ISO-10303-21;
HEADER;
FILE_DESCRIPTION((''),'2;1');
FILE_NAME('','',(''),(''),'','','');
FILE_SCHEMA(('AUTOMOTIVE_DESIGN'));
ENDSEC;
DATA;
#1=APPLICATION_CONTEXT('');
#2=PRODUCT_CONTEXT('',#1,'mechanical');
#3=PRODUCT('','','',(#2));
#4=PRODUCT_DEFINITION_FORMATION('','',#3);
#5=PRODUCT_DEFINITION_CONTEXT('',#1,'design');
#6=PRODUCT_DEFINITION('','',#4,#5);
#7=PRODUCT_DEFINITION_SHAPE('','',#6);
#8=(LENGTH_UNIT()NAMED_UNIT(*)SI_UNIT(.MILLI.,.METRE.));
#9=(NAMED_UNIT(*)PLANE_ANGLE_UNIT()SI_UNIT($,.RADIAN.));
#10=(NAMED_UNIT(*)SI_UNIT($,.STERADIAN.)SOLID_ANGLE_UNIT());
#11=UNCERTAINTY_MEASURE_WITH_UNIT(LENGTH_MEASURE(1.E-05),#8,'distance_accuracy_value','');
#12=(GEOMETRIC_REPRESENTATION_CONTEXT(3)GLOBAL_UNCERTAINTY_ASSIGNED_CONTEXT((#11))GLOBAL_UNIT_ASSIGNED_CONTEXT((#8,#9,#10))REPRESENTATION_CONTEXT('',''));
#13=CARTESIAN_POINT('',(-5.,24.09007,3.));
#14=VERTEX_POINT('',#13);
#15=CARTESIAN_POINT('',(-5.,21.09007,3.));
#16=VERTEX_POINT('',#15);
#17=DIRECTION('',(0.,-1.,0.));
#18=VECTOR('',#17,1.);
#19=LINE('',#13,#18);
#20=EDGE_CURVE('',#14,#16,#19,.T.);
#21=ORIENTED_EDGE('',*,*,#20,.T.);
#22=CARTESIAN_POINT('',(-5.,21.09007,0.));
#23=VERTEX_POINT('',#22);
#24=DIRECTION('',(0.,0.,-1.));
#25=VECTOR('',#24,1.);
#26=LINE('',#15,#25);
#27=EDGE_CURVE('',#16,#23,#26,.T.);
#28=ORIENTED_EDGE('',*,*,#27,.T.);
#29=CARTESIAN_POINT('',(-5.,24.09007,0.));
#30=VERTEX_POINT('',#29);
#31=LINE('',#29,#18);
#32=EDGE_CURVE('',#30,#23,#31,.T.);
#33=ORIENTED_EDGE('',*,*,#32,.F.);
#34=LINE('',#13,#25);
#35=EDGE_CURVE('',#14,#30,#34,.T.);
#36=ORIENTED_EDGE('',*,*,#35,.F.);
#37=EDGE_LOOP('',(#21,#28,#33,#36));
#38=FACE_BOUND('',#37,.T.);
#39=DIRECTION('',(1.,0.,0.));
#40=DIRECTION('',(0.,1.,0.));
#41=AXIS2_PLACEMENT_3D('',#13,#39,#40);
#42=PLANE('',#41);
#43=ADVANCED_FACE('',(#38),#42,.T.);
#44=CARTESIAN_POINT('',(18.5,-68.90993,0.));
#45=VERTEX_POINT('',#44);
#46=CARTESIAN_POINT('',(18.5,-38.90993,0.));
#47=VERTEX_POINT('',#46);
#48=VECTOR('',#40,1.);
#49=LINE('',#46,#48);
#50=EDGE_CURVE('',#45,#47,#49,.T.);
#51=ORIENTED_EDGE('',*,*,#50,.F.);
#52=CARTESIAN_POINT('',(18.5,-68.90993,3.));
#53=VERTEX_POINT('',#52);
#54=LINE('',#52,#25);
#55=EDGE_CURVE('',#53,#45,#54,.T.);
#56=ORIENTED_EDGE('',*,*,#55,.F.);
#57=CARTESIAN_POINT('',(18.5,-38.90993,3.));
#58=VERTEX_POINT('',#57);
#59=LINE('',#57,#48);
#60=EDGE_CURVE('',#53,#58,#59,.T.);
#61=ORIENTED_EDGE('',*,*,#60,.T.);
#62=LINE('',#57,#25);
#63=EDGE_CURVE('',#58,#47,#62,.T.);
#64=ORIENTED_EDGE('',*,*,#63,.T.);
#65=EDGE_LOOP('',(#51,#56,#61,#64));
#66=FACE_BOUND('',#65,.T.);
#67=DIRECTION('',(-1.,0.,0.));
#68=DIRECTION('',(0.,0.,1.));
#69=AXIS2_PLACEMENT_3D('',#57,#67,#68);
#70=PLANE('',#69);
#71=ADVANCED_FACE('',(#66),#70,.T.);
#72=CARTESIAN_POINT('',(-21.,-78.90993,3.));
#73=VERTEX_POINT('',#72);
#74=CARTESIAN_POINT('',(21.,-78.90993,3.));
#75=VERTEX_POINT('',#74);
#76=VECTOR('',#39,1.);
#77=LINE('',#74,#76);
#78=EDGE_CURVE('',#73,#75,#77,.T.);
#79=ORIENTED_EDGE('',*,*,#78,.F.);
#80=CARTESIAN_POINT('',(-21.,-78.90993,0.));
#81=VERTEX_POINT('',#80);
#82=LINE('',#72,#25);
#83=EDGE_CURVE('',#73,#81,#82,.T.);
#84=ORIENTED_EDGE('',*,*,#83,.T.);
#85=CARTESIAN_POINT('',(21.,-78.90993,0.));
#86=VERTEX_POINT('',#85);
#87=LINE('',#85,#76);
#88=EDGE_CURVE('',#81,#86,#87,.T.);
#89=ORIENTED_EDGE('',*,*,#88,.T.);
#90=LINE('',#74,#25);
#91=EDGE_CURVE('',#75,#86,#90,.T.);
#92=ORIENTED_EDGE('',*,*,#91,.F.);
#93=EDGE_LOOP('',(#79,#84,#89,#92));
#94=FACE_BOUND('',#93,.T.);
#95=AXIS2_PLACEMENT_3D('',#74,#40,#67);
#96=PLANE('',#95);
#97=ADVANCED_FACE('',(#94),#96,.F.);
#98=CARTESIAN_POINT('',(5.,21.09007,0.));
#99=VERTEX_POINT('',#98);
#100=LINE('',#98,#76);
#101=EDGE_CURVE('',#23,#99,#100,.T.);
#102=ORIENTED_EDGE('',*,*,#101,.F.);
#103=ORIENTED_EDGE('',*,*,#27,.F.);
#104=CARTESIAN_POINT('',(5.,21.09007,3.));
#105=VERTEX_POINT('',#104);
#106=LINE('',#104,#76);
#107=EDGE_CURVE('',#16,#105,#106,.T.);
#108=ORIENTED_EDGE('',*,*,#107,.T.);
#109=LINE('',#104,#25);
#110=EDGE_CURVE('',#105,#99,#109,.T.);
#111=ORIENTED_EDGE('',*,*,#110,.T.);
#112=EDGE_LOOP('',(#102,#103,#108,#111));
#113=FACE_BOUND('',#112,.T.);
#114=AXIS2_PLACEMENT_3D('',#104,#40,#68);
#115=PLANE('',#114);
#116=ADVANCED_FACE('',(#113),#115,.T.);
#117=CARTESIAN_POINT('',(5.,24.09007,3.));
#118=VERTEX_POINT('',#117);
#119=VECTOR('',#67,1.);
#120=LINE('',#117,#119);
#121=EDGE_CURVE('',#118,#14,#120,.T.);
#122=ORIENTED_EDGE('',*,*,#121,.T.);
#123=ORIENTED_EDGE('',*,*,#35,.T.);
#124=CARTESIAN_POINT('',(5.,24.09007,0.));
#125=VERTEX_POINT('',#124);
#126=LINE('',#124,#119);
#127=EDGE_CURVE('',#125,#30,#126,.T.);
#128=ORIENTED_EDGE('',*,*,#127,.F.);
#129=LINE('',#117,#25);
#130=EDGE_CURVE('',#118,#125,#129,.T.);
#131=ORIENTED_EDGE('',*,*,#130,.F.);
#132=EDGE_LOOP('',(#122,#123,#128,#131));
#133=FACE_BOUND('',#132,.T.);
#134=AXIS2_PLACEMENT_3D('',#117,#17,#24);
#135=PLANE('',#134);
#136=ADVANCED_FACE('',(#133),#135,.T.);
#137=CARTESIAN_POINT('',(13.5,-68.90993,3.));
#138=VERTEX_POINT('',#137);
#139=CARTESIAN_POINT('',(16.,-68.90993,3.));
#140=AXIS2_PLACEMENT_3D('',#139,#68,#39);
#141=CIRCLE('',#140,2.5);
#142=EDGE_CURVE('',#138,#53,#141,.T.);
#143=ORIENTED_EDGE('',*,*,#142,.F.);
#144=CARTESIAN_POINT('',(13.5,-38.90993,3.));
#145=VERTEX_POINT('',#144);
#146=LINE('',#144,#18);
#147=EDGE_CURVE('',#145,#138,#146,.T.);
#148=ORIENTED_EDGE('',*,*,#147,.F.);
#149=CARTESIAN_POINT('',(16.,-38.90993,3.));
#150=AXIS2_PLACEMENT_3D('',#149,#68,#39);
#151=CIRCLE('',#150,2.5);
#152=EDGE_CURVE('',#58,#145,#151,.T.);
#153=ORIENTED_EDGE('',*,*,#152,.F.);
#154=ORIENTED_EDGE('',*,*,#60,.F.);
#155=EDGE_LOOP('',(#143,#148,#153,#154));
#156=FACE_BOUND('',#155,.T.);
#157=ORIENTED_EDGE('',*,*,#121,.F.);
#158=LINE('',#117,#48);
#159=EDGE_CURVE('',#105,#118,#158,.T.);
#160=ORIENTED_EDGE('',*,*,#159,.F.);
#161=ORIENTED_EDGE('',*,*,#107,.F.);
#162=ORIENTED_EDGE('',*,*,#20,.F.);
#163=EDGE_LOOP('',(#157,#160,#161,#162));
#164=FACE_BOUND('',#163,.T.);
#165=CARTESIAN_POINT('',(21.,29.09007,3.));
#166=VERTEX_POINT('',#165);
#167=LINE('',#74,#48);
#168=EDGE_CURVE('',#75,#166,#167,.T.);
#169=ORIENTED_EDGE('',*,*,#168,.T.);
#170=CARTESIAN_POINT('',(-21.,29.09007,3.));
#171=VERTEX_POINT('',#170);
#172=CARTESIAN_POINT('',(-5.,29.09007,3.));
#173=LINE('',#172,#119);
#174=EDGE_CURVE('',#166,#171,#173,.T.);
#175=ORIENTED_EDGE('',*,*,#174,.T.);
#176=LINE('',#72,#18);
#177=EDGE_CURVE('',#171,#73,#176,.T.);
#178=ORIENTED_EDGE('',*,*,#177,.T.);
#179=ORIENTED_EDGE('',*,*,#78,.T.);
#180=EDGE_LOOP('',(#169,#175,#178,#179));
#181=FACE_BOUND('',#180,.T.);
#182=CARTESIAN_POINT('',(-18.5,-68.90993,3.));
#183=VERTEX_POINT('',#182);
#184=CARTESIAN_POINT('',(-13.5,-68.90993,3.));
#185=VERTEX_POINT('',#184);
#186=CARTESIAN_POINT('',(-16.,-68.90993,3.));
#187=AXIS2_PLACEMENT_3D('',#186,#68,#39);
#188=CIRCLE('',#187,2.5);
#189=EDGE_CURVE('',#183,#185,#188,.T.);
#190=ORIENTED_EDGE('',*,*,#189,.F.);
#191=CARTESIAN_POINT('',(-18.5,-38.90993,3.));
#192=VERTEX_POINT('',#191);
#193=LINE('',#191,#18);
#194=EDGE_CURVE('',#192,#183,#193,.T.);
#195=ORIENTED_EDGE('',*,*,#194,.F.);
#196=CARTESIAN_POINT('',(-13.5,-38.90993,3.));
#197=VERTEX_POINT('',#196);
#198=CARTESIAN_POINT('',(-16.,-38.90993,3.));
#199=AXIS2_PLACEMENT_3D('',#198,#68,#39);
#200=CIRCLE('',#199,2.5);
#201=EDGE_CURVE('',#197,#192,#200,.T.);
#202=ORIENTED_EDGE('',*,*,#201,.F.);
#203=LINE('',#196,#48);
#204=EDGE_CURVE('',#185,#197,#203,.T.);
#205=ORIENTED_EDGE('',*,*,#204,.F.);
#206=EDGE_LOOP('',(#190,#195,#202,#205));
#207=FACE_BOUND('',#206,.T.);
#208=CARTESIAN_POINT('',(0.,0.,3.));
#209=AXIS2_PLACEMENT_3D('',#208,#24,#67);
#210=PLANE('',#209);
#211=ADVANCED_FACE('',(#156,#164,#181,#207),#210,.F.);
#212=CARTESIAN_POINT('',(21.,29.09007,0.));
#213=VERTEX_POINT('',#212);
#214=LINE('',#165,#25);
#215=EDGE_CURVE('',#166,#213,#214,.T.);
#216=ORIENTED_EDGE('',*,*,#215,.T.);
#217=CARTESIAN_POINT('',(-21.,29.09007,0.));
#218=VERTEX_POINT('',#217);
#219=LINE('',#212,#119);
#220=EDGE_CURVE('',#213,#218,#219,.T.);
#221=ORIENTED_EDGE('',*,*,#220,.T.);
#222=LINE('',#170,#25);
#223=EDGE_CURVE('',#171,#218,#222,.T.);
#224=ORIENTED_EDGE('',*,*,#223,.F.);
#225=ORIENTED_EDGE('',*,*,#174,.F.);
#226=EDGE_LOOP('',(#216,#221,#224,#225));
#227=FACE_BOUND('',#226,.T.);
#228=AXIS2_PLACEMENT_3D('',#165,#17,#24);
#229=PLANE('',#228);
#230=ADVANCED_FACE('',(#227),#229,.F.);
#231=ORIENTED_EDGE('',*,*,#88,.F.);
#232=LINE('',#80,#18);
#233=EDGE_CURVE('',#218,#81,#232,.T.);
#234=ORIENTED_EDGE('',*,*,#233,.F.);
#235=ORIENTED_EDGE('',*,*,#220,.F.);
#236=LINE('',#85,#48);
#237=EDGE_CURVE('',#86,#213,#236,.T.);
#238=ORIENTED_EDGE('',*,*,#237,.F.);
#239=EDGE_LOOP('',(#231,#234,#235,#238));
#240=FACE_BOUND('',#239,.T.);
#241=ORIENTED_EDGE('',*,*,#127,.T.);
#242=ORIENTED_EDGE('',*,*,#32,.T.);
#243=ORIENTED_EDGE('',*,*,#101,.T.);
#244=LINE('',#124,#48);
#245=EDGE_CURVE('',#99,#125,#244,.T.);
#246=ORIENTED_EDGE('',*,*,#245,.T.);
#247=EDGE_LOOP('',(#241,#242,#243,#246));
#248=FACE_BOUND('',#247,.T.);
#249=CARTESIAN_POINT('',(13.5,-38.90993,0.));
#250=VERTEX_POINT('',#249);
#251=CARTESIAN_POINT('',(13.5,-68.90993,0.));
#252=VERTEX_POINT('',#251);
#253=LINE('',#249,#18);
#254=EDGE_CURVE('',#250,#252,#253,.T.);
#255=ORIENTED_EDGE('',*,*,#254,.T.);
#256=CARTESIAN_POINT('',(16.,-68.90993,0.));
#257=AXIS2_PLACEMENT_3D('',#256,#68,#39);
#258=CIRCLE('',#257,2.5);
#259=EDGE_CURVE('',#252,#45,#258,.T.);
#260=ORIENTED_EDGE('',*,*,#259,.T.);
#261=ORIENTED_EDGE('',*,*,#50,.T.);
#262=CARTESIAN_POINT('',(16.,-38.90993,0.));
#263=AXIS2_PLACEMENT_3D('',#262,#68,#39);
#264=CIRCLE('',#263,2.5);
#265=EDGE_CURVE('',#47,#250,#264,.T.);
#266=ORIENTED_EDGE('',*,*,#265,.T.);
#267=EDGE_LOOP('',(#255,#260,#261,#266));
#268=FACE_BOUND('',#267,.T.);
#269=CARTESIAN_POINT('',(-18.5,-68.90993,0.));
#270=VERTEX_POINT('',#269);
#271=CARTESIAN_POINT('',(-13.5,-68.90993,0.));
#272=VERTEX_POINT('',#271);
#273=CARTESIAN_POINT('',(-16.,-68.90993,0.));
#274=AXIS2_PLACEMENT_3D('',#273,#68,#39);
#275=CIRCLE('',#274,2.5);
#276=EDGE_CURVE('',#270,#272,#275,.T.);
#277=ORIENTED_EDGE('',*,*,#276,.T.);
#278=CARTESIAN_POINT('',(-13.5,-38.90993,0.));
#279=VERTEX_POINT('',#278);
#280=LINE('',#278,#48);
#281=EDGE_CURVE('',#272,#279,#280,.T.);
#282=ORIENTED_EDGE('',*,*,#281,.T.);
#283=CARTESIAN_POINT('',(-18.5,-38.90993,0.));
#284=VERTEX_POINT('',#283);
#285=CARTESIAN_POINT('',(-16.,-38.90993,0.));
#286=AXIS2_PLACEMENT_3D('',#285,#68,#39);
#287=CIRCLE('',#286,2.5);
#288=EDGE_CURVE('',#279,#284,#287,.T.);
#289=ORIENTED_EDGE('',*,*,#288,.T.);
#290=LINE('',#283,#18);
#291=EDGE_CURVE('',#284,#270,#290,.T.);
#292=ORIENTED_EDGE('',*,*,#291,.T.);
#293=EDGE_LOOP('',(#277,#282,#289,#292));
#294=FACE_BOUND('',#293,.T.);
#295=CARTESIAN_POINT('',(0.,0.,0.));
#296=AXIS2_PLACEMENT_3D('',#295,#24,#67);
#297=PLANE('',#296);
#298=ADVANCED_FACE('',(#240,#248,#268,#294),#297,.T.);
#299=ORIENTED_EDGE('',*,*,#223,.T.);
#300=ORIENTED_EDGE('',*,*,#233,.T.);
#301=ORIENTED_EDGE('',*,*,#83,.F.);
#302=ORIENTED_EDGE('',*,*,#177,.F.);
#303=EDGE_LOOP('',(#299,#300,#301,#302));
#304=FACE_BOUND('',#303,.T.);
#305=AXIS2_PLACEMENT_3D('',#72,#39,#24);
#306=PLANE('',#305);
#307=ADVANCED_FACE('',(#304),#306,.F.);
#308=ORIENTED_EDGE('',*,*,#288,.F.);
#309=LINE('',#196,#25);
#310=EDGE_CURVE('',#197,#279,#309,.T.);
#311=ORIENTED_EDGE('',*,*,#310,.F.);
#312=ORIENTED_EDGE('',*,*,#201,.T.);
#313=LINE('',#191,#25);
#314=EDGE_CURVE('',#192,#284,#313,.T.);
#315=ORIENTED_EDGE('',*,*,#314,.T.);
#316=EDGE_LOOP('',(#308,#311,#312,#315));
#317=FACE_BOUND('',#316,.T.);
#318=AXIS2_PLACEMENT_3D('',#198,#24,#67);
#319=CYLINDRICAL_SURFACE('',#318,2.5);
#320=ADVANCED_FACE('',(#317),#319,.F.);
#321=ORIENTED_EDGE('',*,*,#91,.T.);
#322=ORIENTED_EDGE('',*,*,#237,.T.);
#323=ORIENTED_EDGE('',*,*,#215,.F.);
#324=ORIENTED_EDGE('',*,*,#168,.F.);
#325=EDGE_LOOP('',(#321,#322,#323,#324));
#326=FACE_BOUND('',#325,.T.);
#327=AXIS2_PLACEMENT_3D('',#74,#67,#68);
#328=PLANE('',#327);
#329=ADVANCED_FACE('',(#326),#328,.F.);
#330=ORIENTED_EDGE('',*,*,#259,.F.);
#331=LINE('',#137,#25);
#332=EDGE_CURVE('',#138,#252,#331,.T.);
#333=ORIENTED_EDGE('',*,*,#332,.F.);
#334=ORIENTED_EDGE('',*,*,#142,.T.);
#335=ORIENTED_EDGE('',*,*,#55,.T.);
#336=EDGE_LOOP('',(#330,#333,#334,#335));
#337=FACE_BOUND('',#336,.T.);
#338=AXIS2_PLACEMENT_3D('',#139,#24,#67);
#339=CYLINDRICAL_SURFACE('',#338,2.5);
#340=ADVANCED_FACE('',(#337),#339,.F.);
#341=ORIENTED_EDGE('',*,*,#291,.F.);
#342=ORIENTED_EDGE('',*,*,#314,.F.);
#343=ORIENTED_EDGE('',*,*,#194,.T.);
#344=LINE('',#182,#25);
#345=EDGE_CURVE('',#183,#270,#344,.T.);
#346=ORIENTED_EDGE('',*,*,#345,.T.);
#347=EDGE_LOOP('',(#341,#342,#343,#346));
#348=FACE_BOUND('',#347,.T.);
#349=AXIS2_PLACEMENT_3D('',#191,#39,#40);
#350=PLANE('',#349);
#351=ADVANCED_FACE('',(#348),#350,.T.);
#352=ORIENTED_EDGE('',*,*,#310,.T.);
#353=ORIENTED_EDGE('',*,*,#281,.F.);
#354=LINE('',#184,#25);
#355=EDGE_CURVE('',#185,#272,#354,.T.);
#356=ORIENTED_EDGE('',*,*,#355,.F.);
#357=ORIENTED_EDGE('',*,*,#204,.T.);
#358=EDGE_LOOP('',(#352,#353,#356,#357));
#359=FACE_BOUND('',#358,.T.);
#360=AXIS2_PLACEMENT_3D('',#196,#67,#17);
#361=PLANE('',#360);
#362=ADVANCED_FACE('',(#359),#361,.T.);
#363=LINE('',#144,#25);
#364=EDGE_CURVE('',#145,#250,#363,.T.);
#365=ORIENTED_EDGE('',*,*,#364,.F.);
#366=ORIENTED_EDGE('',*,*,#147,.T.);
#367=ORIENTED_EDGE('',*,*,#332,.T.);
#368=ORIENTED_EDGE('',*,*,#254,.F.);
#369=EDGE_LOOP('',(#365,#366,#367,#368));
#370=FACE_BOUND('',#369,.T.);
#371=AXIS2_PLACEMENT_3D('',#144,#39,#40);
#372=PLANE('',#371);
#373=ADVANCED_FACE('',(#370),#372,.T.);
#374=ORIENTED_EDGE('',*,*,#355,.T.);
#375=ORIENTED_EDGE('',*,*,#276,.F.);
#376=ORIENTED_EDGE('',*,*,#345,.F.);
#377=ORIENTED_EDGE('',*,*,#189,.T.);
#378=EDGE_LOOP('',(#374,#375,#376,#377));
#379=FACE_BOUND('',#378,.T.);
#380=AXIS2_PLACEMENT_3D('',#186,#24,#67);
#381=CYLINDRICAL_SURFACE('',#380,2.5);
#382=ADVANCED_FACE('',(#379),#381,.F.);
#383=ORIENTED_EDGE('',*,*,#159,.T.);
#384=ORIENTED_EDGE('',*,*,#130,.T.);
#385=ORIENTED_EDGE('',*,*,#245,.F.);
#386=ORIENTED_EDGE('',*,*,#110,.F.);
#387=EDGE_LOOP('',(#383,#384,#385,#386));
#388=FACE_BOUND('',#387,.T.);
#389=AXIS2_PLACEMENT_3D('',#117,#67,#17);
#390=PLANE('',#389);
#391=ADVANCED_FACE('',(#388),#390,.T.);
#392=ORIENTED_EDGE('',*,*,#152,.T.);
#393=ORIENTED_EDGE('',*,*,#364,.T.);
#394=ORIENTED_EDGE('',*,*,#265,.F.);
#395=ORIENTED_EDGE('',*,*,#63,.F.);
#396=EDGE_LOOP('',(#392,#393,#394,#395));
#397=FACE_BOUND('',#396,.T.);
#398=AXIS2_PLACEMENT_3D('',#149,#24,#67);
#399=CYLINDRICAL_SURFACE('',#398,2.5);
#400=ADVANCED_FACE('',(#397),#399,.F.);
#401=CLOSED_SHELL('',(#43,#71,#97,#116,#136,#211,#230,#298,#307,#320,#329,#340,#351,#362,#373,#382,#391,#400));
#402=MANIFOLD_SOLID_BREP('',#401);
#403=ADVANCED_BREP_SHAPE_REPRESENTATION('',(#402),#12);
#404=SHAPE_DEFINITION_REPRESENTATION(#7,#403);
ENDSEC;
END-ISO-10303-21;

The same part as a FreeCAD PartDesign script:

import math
import FreeCAD as App
import Part
import Sketcher
Q = App.Units.Quantity


def add_polygon(sketch, points):
    """Adds a closed chain of lines whose ends are joined by coincident constraints."""
    first, n = sketch.GeometryCount, len(points)
    for a, b in zip(points, points[1:] + points[:1]):
        sketch.addGeometry(Part.LineSegment(App.Vector(*a, 0), App.Vector(*b, 0)), False)
    for i in range(n):
        sketch.addConstraint(Sketcher.Constraint("Coincident", first + i, 2, first + (i + 1) % n, 1))

doc = App.newDocument("Part")
params = doc.addObject("Spreadsheet::Sheet", "Params")
for row, (alias, value) in enumerate([
    ("sketch1_radius", "2.5 mm"),
    ("sketch1_width", "42 mm"),
    ("sketch1_width2", "10 mm"),
    ("sketch1_height", "108 mm"),
    ("sketch1_height2", "30 mm"),
    ("pad1_length", "3 mm"),
], start=1):
    params.set(f"A{row}", alias)
    params.set(f"B{row}", "=" + value)
    params.setAlias(f"B{row}", alias)

body = doc.addObject("PartDesign::Body", "Body")

# Sketch on XY plane
sketch1 = body.newObject("Sketcher::SketchObject", "Sketch")
sketch1.AttachmentSupport = (doc.getObject("XY_Plane"), [""])
sketch1.MapMode = "FlatFace"
add_polygon(sketch1, [(-21, -78.9), (21, -78.9), (21, 29.1), (-21, 29.1)])  # lines 0-3
sketch1.addGeometry(Part.LineSegment(App.Vector(18.5, -38.9, 0), App.Vector(18.5, -68.9, 0)), False)  # 4
sketch1.addGeometry(Part.ArcOfCircle(Part.Circle(App.Vector(16, -68.9, 0), App.Vector(0, 0, 1), 2.5), math.radians(180), math.radians(360)), False)  # 5
sketch1.addGeometry(Part.LineSegment(App.Vector(13.5, -68.9, 0), App.Vector(13.5, -38.9, 0)), False)  # 6
sketch1.addGeometry(Part.ArcOfCircle(Part.Circle(App.Vector(16, -38.9, 0), App.Vector(0, 0, 1), 2.5), math.radians(0), math.radians(180)), False)  # 7
sketch1.addGeometry(Part.LineSegment(App.Vector(-13.5, -38.9, 0), App.Vector(-13.5, -68.9, 0)), False)  # 8
sketch1.addGeometry(Part.ArcOfCircle(Part.Circle(App.Vector(-16, -68.9, 0), App.Vector(0, 0, 1), 2.5), math.radians(180), math.radians(360)), False)  # 9
sketch1.addGeometry(Part.LineSegment(App.Vector(-18.5, -68.9, 0), App.Vector(-18.5, -38.9, 0)), False)  # 10
sketch1.addGeometry(Part.ArcOfCircle(Part.Circle(App.Vector(-16, -38.9, 0), App.Vector(0, 0, 1), 2.5), math.radians(0), math.radians(180)), False)  # 11
add_polygon(sketch1, [(-5, 21.1), (-5, 24.1), (5, 24.1), (5, 21.1)])  # lines 12-15
sketch1.addConstraint([
    Sketcher.Constraint("Tangent", 4, 2, 5, 2),
    Sketcher.Constraint("Tangent", 5, 1, 6, 1),
    Sketcher.Constraint("Tangent", 6, 2, 7, 2),
    Sketcher.Constraint("Tangent", 7, 1, 4, 1),
    Sketcher.Constraint("Tangent", 8, 2, 9, 2),
    Sketcher.Constraint("Tangent", 9, 1, 10, 1),
    Sketcher.Constraint("Tangent", 10, 2, 11, 2),
    Sketcher.Constraint("Tangent", 11, 1, 8, 1),
    Sketcher.Constraint("Horizontal", 0),
    Sketcher.Constraint("Vertical", 1),
    Sketcher.Constraint("Horizontal", 2),
    Sketcher.Constraint("Vertical", 3),
    Sketcher.Constraint("Vertical", 4),
    Sketcher.Constraint("Vertical", 6),
    Sketcher.Constraint("Vertical", 8),
    Sketcher.Constraint("Vertical", 10),
    Sketcher.Constraint("Vertical", 12),
    Sketcher.Constraint("Horizontal", 13),
    Sketcher.Constraint("Vertical", 14),
    Sketcher.Constraint("Horizontal", 15),
    Sketcher.Constraint("Equal", 7, 9),
    Sketcher.Constraint("Symmetric", 5, 3, 9, 3, -2),
    Sketcher.Constraint("Horizontal", 7, 3, 11, 3),
    Sketcher.Constraint("Radius", 5, Q("2.5 mm")),
    Sketcher.Constraint("DistanceX", 0, 1, 0, 2, Q("42 mm")),
    Sketcher.Constraint("DistanceX", 13, 1, 13, 2, Q("10 mm")),
    Sketcher.Constraint("DistanceY", 1, 1, 1, 2, Q("108 mm")),
    Sketcher.Constraint("DistanceY", 4, 2, 4, 1, Q("30 mm")),
    Sketcher.Constraint("DistanceY", 12, 1, 12, 2, Q("3 mm")),
    Sketcher.Constraint("DistanceX", -1, 1, 5, 3, Q("16 mm")),
    Sketcher.Constraint("DistanceX", -1, 1, 0, 2, Q("21 mm")),
    Sketcher.Constraint("DistanceX", 12, 2, -1, 1, Q("5 mm")),
    Sketcher.Constraint("DistanceY", 0, 2, 5, 3, Q("10 mm")),
    Sketcher.Constraint("DistanceY", 12, 2, 2, 2, Q("5 mm")),
    Sketcher.Constraint("DistanceY", 5, 3, -1, 1, Q("68.90993 mm")),
])
sketch1.setExpression("Constraints[31]", "Params.sketch1_radius")
sketch1.setExpression("Constraints[32]", "Params.sketch1_width")
sketch1.setExpression("Constraints[33]", "Params.sketch1_width2")
sketch1.setExpression("Constraints[34]", "Params.sketch1_height")
sketch1.setExpression("Constraints[35]", "Params.sketch1_height2")
pad1 = body.newObject("PartDesign::Pad", "Pad")
pad1.Profile = sketch1
pad1.setExpression("Length", "Params.pad1_length")

doc.recompute()
